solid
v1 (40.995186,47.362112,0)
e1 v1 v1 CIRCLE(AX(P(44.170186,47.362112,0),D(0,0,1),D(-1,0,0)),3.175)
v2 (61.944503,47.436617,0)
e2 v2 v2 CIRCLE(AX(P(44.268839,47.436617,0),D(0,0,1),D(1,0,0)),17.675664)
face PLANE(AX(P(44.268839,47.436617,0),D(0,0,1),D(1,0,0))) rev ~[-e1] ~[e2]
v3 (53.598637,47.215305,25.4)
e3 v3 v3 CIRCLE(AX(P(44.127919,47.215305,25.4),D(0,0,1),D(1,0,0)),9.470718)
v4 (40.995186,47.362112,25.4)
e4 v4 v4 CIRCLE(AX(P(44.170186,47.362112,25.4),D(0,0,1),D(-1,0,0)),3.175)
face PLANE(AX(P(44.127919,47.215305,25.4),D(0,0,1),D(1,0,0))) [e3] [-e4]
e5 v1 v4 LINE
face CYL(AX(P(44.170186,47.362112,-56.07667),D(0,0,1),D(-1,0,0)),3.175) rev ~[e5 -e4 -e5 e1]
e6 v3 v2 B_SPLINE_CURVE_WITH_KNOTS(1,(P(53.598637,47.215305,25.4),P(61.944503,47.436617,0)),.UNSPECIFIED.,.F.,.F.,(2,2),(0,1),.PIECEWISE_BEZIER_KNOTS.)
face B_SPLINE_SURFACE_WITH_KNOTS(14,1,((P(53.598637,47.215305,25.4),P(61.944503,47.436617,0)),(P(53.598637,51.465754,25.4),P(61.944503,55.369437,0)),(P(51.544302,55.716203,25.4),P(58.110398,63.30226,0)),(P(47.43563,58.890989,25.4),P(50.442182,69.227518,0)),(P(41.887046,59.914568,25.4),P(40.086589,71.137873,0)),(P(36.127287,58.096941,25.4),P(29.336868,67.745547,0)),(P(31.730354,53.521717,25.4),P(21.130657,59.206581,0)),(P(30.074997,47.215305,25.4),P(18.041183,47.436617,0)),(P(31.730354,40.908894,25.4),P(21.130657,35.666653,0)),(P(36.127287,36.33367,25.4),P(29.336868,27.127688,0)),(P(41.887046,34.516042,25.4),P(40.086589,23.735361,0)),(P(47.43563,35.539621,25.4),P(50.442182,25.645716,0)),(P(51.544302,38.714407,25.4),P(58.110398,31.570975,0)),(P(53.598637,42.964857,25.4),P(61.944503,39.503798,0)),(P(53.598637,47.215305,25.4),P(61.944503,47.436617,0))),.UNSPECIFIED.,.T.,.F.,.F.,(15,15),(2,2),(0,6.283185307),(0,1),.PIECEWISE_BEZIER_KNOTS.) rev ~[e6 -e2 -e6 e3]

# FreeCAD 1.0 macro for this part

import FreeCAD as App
import Part
import Sketcher
from FreeCAD import Vector
Q = App.Units.Quantity

doc = App.newDocument("Part")
body = doc.addObject("PartDesign::Body", "Body")

sketch1 = body.newObject("Sketcher::SketchObject", "Sketch")
sketch1.AttachmentSupport = (doc.getObject("XY_Plane"), [""])
sketch1.MapMode = "FlatFace"
sketch1.AttachmentOffset = App.Placement(Vector(0, 0, 1 * 25.4), App.Rotation())
sketch1.addGeometry(Part.Circle(Vector(44, 47, 0), Vector(0, 0, 1), 9), False)
sketch1.addConstraint([
    Sketcher.Constraint("Diameter", 0, Q("18.941436 mm")),
    Sketcher.Constraint("DistanceX", -1, 1, 0, 3, Q("44.127919 mm")),
    Sketcher.Constraint("DistanceY", -1, 1, 0, 3, Q("47.215305 mm")),
])

sketch2 = body.newObject("Sketcher::SketchObject", "Sketch001")
sketch2.AttachmentSupport = (doc.getObject("XY_Plane"), [""])
sketch2.MapMode = "FlatFace"
sketch2.addGeometry(Part.Circle(Vector(44, 47, 0), Vector(0, 0, 1), 18), False)
sketch2.addConstraint([
    Sketcher.Constraint("Diameter", 0, Q("35.351329 mm")),
    Sketcher.Constraint("DistanceX", -1, 1, 0, 3, Q("44.268839 mm")),
    Sketcher.Constraint("DistanceY", -1, 1, 0, 3, Q("47.436617 mm")),
])

additiveloft = body.newObject("PartDesign::AdditiveLoft", "AdditiveLoft")
additiveloft.Profile = sketch1
additiveloft.Sections = [sketch2]

sketch3 = body.newObject("Sketcher::SketchObject", "Sketch002")
sketch3.AttachmentSupport = (doc.getObject("XY_Plane"), [""])
sketch3.MapMode = "FlatFace"
sketch3.addGeometry(Part.Circle(Vector(44.2, 47.4, 0), Vector(0, 0, 1), 3.2), False)
sketch3.addConstraint([
    Sketcher.Constraint("Diameter", 0, Q("0.25 in")),
    Sketcher.Constraint("DistanceY", -1, 1, 0, 3, Q("47.362112 mm")),
    Sketcher.Constraint("DistanceX", -1, 1, 0, 3, Q("44.170186 mm")),
])
doc.recompute()
hole = body.newObject("PartDesign::Hole", "Hole")
hole.Profile = sketch3
hole.ThreadType = "None"
hole.Diameter = Q("0.25 in")
hole.DepthType = "ThroughAll"
hole.Reversed = True

doc.recompute()
